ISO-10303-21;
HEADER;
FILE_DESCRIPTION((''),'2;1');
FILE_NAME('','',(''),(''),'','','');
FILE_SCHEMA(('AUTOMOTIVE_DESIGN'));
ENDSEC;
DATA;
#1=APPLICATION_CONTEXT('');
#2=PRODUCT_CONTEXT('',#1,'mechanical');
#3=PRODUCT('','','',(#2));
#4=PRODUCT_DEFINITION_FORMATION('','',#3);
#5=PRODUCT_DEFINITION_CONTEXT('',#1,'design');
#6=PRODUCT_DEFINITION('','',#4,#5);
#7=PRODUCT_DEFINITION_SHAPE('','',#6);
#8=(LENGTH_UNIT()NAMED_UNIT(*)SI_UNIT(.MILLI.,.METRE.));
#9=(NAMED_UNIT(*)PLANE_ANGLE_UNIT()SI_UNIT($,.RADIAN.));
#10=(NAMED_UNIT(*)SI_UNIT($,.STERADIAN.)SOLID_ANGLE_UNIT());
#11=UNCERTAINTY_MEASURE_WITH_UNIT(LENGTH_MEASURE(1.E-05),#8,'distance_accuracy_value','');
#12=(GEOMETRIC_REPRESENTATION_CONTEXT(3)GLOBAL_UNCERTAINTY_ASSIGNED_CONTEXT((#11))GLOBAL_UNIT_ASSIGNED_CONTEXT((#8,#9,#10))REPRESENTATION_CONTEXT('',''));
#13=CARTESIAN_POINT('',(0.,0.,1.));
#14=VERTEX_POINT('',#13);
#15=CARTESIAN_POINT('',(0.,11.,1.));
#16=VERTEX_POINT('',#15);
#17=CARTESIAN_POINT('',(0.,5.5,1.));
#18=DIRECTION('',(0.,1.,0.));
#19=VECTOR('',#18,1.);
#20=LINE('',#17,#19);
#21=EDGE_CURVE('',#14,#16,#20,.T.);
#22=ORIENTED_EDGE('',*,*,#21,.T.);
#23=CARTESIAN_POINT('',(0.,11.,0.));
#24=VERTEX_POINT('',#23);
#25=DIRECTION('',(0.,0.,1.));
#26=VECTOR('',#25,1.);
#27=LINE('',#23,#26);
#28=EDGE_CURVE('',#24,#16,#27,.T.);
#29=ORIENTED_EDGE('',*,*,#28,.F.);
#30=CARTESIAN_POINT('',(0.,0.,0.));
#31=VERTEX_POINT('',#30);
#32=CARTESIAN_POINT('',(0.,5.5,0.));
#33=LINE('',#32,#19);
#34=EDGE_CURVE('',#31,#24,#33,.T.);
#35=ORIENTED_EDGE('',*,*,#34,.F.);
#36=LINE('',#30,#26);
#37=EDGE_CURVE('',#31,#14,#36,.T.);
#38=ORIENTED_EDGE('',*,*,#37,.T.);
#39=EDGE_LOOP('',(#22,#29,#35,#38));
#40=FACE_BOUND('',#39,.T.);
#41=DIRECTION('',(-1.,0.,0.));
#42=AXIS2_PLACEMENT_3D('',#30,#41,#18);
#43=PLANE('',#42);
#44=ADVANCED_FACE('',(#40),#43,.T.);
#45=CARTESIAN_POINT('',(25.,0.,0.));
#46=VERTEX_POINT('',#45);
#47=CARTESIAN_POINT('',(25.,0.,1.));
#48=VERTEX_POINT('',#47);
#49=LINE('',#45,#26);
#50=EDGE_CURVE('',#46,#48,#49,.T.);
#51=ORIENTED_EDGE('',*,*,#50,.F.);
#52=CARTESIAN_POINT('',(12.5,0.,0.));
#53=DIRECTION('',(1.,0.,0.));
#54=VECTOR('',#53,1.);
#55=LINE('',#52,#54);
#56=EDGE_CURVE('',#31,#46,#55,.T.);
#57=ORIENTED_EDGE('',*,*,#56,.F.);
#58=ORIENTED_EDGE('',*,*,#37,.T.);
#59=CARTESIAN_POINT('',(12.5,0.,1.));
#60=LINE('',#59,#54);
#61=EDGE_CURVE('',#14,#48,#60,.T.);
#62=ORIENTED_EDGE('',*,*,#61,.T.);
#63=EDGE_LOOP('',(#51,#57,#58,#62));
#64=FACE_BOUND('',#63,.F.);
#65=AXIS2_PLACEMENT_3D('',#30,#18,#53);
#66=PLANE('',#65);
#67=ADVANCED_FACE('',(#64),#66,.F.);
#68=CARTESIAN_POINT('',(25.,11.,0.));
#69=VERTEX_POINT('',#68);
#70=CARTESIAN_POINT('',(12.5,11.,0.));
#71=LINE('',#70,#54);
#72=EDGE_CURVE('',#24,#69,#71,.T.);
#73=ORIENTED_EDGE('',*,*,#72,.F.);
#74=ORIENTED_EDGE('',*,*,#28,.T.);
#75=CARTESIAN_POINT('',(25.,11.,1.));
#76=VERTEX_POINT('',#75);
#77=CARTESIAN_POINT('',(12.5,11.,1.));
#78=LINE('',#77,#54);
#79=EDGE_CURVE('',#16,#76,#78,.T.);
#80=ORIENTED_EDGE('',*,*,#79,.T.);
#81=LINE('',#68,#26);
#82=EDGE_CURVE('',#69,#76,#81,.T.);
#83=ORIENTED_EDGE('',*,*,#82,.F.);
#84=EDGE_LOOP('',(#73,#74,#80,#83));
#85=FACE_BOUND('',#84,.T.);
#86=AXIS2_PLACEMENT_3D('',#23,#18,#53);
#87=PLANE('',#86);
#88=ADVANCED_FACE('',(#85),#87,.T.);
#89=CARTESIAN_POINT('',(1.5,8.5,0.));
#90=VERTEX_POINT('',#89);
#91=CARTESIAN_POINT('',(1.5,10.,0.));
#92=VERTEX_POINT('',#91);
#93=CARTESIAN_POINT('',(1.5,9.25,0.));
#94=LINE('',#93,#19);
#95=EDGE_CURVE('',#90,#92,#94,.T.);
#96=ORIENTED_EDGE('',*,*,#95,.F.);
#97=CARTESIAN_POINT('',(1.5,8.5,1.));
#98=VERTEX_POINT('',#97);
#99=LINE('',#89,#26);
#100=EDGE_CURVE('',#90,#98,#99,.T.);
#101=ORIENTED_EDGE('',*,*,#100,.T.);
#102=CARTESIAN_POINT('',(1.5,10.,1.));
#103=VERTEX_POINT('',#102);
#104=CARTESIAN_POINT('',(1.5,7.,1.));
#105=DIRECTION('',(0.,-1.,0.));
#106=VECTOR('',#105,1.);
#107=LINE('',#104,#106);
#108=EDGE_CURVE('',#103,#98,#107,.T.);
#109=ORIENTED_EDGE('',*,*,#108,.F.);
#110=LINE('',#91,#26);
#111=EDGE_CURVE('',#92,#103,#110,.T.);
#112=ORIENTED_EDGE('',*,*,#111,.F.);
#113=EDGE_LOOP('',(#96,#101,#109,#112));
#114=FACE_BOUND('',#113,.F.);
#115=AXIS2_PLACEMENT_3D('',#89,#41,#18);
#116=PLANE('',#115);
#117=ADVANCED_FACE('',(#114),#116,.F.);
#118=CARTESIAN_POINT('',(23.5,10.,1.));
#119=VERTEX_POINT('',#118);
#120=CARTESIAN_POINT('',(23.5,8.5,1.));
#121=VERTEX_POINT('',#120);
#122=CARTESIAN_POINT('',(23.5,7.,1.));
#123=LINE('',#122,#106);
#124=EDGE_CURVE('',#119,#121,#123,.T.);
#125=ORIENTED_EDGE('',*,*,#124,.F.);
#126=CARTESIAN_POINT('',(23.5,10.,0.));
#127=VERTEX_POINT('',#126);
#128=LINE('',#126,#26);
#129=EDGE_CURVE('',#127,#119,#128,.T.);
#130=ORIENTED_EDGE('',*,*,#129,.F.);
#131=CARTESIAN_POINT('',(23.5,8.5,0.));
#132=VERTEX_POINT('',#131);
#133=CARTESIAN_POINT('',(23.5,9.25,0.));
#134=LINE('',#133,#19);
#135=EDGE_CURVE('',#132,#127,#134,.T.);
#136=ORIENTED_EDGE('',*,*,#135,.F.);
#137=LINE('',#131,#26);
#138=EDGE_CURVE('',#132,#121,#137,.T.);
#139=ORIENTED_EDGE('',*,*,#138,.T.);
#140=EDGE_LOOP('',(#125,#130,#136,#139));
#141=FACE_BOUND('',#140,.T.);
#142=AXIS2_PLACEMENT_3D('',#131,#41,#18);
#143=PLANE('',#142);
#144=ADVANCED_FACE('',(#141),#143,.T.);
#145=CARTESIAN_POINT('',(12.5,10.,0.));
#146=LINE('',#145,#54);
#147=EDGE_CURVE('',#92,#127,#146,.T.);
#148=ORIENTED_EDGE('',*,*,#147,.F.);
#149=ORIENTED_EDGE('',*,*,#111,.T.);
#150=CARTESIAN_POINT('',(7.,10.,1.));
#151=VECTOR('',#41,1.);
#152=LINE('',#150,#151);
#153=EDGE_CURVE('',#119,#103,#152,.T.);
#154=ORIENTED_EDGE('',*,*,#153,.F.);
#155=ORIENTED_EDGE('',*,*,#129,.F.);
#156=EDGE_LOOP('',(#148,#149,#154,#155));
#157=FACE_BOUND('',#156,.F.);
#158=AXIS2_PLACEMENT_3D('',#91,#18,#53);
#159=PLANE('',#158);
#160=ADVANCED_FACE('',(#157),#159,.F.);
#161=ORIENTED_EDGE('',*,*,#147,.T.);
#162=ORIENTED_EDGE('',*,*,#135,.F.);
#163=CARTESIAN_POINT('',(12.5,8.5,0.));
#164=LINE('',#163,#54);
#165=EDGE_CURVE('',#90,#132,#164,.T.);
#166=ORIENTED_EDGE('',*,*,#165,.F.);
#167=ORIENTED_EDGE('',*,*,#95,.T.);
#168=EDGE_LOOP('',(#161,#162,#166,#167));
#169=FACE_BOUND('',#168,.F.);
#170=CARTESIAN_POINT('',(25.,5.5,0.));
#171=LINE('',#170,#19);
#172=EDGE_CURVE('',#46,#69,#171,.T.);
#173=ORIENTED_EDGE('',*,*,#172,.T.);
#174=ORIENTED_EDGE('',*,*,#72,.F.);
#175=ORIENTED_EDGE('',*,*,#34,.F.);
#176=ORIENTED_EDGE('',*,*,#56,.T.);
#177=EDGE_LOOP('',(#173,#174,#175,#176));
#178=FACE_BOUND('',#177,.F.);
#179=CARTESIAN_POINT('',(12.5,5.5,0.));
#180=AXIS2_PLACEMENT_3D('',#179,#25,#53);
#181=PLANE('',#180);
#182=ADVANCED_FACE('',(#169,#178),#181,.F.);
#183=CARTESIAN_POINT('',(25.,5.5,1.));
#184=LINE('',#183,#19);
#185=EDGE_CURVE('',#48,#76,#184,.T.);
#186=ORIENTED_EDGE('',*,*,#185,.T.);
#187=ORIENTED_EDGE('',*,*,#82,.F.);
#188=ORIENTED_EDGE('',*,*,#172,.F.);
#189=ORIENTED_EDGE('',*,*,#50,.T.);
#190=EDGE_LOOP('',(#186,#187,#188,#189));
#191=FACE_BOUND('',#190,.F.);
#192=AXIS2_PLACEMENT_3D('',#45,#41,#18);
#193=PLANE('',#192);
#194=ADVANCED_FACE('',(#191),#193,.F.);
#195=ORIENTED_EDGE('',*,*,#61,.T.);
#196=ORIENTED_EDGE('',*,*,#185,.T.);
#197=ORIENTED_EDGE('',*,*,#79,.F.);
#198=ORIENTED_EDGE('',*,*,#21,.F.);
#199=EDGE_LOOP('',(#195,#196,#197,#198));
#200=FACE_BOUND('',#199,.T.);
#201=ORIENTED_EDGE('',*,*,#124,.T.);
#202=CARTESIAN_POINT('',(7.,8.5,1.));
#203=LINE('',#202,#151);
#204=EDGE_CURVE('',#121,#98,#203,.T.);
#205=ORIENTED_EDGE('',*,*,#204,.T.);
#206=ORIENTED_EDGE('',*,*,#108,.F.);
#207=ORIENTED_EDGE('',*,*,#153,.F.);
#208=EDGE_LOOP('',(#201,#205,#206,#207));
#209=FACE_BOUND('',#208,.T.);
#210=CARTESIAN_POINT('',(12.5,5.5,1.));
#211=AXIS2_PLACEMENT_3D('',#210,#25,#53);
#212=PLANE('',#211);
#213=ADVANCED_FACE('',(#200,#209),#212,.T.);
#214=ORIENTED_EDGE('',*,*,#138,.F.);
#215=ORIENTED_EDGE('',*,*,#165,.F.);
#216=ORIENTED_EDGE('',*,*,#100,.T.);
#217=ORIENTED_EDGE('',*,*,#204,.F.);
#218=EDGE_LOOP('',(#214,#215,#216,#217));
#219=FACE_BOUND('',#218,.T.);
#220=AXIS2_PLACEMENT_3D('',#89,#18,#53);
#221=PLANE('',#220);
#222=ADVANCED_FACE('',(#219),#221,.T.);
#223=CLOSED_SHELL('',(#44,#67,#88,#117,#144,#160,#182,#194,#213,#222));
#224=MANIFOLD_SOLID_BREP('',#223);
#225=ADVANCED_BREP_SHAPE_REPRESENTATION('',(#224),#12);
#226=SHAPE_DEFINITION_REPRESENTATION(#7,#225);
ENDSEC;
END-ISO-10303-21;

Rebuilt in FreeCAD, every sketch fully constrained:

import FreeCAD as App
import Part
import Sketcher


def add_polygon(sketch, points):
    """Adds a closed chain of lines whose ends are joined by coincident constraints."""
    first, n = sketch.GeometryCount, len(points)
    for a, b in zip(points, points[1:] + points[:1]):
        sketch.addGeometry(Part.LineSegment(App.Vector(*a, 0), App.Vector(*b, 0)), False)
    for i in range(n):
        sketch.addConstraint(Sketcher.Constraint("Coincident", first + i, 2, first + (i + 1) % n, 1))

doc = App.newDocument("Part")
body = doc.addObject("PartDesign::Body", "Body")

# Sketch on XY plane
sketch1 = doc.addObject("Sketcher::SketchObject", "Sketch")
body.addObject(sketch1)
sketch1.AttachmentSupport = (doc.XY_Plane, [""])
sketch1.MapMode = "FlatFace"
add_polygon(sketch1, [(1.5, 10), (1.5, 8.5), (23.5, 8.5), (23.5, 10)])  # lines 0-3
sketch1.addConstraint([
    Sketcher.Constraint("Vertical", 0),
    Sketcher.Constraint("Horizontal", 1),
    Sketcher.Constraint("Vertical", 2),
    Sketcher.Constraint("Horizontal", 3),
    Sketcher.Constraint("DistanceX", 1, 1, 1, 2, 22.0),
    Sketcher.Constraint("DistanceY", 0, 2, 0, 1, 1.5),
    Sketcher.Constraint("DistanceY", -1, 1, 2, 2, 10.0),
    Sketcher.Constraint("DistanceX", -1, 1, 0, 2, 1.5),
])
pad1 = doc.addObject("PartDesign::Pad", "Pad")
body.addObject(pad1)
pad1.Profile = sketch1
pad1.Length = 2
body2 = doc.addObject("PartDesign::Body", "Body001")

# Sketch on XY plane
sketch2 = doc.addObject("Sketcher::SketchObject", "Sketch001")
body2.addObject(sketch2)
sketch2.AttachmentSupport = (doc.getObject("XY_Plane001"), [""])
sketch2.MapMode = "FlatFace"
add_polygon(sketch2, [(0, 11), (0, 0), (25, 0), (25, 11)])  # lines 0-3
sketch2.addConstraint([
    Sketcher.Constraint("Vertical", 0),
    Sketcher.Constraint("Horizontal", 1),
    Sketcher.Constraint("Vertical", 2),
    Sketcher.Constraint("Horizontal", 3),
    Sketcher.Constraint("Coincident", 0, 2, -1, 1),
    Sketcher.Constraint("DistanceX", 1, 1, 1, 2, 25.0),
    Sketcher.Constraint("DistanceY", 0, 2, 0, 1, 11.0),
])
pad2 = doc.addObject("PartDesign::Pad", "Pad001")
body2.addObject(pad2)
pad2.Profile = sketch2
pad2.Length = 1
doc.recompute()

boolean = doc.addObject("PartDesign::Boolean", "Boolean")
body2.addObject(boolean)
boolean.Type = "Cut"
boolean.addObjects([body])

doc.recompute()
